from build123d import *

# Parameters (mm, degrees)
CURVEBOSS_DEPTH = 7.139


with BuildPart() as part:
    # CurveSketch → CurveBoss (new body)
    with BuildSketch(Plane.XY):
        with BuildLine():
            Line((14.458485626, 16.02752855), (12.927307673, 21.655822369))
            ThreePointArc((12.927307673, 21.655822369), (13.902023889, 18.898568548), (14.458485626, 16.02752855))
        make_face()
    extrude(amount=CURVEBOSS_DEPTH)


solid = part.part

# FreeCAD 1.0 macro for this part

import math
import FreeCAD as App
import Part
import Sketcher
from FreeCAD import Vector
Q = App.Units.Quantity

doc = App.newDocument("Part")
params = doc.addObject("Spreadsheet::Sheet", "Params")
for row, (alias, value) in enumerate([
    ("pad1_length", "7.139 mm"),
], start=1):
    params.set(f"A{row}", alias)
    params.set(f"B{row}", "=" + value)
    params.setAlias(f"B{row}", alias)

body = doc.addObject("PartDesign::Body", "Body")

sketch1 = body.newObject("Sketcher::SketchObject", "Sketch")
sketch1.AttachmentSupport = (doc.getObject("XY_Plane"), [""])
sketch1.MapMode = "FlatFace"
sketch1.addGeometry(Part.LineSegment(Vector(12.927308, 21.655822, 0), Vector(14.458486, 16.027529, 0)), False)
sketch1.addGeometry(Part.ArcOfCircle(Part.Circle(Vector(-5.137, 13.719, 0), Vector(0, 0, 1), 19.731), math.radians(6.719), math.radians(23.719)), False)
sketch1.addConstraint(Sketcher.Constraint("Coincident", 0, 1, 1, 2))
sketch1.addConstraint(Sketcher.Constraint("Coincident", 1, 1, 0, 2))
sketch1.addConstraint(Sketcher.Constraint("Radius", 1, Q("19.731 mm")))
sketch1.addConstraint(Sketcher.Constraint("DistanceX", 1, 3, -1, 1, Q("5.137 mm")))
sketch1.addConstraint(Sketcher.Constraint("DistanceY", -1, 1, 1, 3, Q("13.719 mm")))
sketch1.addConstraint(Sketcher.Constraint("DistanceY", -1, 1, 1, 1, Q("16.027529 mm")))
sketch1.addConstraint(Sketcher.Constraint("Distance", 0, Q("5.832855 mm")))
pad1 = body.newObject("PartDesign::Pad", "Pad")
pad1.Profile = sketch1
pad1.setExpression("Length", "Params.pad1_length")

doc.recompute()
